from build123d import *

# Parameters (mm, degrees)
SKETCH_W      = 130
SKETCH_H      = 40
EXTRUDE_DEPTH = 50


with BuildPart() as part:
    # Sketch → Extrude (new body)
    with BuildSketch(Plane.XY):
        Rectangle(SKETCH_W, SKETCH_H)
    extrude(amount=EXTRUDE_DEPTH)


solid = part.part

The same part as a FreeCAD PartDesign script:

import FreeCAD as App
import Part
import Sketcher
from FreeCAD import Vector
Q = App.Units.Quantity


def add_polygon(sketch, points):
    """Adds a closed chain of lines whose ends are joined by coincident constraints."""
    first, n = sketch.GeometryCount, len(points)
    for a, b in zip(points, points[1:] + points[:1]):
        sketch.addGeometry(Part.LineSegment(App.Vector(*a, 0), App.Vector(*b, 0)), False)
    for i in range(n):
        sketch.addConstraint(Sketcher.Constraint("Coincident", first + i, 2, first + (i + 1) % n, 1))

doc = App.newDocument("Part")
body = doc.addObject("PartDesign::Body", "Body")

# Sketch on XY plane
sketch1 = body.newObject("Sketcher::SketchObject", "Sketch")
sketch1.AttachmentSupport = (doc.getObject("XY_Plane"), [""])
sketch1.MapMode = "FlatFace"
add_polygon(sketch1, [(-65, 20), (-65, -20), (65, -20), (65, 20)])  # lines 0-3
sketch1.addConstraint(Sketcher.Constraint("Vertical", 0))
sketch1.addConstraint(Sketcher.Constraint("Horizontal", 1))
sketch1.addConstraint(Sketcher.Constraint("Vertical", 2))
sketch1.addConstraint(Sketcher.Constraint("Horizontal", 3))
sketch1.addConstraint(Sketcher.Constraint("Symmetric", 0, 2, 2, 2, -1, 1))
sketch1.addConstraint(Sketcher.Constraint("DistanceX", 1, 1, 1, 2, Q("130 mm")))
sketch1.addConstraint(Sketcher.Constraint("DistanceY", 0, 2, 0, 1, Q("40 mm")))
pad1 = body.newObject("PartDesign::Pad", "Pad")
pad1.Profile = sketch1
pad1.Length = 50

doc.recompute()
